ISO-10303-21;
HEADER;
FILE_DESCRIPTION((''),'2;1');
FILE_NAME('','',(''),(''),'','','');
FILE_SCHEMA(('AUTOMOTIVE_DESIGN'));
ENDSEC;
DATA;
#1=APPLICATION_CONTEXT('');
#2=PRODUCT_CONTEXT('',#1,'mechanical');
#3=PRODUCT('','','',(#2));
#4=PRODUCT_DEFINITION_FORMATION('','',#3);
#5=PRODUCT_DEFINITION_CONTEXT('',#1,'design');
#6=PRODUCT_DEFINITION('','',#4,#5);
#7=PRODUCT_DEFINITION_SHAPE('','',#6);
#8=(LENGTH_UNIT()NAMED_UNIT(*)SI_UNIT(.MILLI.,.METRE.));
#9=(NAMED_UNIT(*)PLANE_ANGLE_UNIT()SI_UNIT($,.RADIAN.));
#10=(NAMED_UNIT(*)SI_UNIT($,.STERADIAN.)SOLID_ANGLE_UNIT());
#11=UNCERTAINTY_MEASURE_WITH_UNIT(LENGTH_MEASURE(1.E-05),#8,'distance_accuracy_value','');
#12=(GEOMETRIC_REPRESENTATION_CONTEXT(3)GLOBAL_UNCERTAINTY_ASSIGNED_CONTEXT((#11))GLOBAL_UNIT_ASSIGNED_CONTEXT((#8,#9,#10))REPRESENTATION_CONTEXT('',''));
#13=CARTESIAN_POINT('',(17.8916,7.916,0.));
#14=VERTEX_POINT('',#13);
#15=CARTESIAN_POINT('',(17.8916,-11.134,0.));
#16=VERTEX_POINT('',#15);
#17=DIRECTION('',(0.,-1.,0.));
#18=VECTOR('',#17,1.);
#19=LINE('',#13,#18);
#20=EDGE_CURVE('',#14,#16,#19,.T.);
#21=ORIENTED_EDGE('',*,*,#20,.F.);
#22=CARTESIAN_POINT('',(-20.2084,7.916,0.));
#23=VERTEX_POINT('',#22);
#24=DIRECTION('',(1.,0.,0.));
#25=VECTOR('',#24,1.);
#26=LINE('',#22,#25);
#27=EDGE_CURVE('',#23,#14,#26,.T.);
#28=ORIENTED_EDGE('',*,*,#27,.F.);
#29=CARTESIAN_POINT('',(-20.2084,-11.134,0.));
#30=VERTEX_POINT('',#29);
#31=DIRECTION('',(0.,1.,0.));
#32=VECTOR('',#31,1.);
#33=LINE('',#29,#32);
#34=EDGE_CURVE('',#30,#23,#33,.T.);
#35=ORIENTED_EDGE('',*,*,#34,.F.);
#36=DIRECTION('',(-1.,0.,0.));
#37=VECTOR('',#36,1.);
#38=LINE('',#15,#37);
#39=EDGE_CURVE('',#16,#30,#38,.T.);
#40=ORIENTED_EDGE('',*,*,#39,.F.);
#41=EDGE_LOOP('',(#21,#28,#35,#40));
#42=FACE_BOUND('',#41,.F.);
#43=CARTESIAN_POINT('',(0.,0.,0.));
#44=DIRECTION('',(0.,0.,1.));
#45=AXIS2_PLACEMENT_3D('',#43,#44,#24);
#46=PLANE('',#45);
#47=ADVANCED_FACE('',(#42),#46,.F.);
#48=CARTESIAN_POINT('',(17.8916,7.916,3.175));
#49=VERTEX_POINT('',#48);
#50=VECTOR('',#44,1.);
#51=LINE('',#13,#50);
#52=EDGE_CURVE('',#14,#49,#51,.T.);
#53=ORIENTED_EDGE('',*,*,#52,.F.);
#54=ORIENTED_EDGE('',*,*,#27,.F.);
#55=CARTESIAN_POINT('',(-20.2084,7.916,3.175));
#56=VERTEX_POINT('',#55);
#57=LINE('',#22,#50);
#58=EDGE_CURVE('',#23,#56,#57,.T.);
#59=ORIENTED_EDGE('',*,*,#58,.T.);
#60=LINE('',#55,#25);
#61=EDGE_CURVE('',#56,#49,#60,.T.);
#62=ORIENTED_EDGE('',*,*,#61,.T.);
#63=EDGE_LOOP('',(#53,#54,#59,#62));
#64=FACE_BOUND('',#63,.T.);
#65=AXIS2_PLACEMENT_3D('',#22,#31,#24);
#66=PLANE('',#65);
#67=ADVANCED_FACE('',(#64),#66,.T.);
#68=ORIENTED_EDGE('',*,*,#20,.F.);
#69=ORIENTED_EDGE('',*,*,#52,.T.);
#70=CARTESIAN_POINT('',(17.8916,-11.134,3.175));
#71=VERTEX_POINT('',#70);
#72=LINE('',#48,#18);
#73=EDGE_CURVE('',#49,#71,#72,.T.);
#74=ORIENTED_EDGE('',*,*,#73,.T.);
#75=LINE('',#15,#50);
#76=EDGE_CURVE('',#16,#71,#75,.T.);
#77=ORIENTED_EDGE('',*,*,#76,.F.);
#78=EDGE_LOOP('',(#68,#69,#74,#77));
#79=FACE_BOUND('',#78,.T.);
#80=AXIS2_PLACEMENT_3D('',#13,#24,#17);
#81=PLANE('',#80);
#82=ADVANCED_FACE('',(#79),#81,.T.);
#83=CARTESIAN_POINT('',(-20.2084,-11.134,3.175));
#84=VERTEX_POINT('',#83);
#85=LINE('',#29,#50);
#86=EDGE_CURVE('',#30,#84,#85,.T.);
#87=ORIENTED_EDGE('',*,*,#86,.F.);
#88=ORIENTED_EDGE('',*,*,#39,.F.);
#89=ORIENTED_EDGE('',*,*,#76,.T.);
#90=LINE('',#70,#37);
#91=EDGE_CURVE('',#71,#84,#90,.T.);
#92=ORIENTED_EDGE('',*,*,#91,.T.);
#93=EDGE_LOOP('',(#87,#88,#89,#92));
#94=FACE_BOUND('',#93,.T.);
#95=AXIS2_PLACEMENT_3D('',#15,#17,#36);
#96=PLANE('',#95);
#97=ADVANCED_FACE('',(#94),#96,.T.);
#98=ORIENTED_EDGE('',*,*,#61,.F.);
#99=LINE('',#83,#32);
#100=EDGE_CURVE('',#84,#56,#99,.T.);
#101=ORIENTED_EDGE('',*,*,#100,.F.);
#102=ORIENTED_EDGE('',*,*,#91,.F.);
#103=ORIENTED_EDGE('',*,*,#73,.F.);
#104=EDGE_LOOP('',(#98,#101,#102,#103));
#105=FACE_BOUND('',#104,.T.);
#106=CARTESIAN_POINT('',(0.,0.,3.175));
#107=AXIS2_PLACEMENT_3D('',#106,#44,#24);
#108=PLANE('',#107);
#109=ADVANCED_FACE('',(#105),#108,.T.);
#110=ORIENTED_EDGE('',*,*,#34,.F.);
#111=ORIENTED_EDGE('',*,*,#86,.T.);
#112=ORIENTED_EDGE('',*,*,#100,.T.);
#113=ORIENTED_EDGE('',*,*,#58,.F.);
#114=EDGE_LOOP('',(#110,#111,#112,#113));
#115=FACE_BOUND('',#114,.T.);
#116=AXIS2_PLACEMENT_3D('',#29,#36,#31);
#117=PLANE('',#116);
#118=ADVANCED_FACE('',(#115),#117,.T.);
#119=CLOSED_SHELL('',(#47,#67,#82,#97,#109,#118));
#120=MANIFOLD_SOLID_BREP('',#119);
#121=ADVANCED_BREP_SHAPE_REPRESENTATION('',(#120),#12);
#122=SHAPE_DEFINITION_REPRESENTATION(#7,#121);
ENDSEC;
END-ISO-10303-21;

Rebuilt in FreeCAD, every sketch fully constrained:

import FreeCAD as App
import Part
import Sketcher
Q = App.Units.Quantity

doc = App.newDocument("Part")
body = doc.addObject("PartDesign::Body", "Body")

# Sketch on XY plane
sketch1 = body.newObject("Sketcher::SketchObject", "Sketch")
sketch1.AttachmentSupport = (doc.getObject("XY_Plane"), [""])
sketch1.MapMode = "FlatFace"
sketch1.addGeometry(Part.LineSegment(App.Vector(18, 8, 0), App.Vector(-20, 8, 0)), False)
sketch1.addGeometry(Part.LineSegment(App.Vector(-20, 8, 0), App.Vector(-20, -11, 0)), False)
sketch1.addGeometry(Part.LineSegment(App.Vector(-20, -11, 0), App.Vector(18, -11, 0)), False)
sketch1.addGeometry(Part.LineSegment(App.Vector(18, -11, 0), App.Vector(18, 8, 0)), False)
sketch1.addConstraint(Sketcher.Constraint("Coincident", 0, 2, 1, 1))
sketch1.addConstraint(Sketcher.Constraint("Coincident", 1, 2, 2, 1))
sketch1.addConstraint(Sketcher.Constraint("Coincident", 2, 2, 3, 1))
sketch1.addConstraint(Sketcher.Constraint("Coincident", 3, 2, 0, 1))
sketch1.addConstraint(Sketcher.Constraint("Horizontal", 0))
sketch1.addConstraint(Sketcher.Constraint("Vertical", 1))
sketch1.addConstraint(Sketcher.Constraint("Horizontal", 2))
sketch1.addConstraint(Sketcher.Constraint("Vertical", 3))
sketch1.addConstraint(Sketcher.Constraint("DistanceX", 0, 2, 0, 1, Q("1.5 in")))
sketch1.addConstraint(Sketcher.Constraint("DistanceY", 1, 2, 1, 1, Q("0.75 in")))
sketch1.addConstraint(Sketcher.Constraint("DistanceX", 0, 2, -1, 1, Q("0.7956 in")))
sketch1.addConstraint(Sketcher.Constraint("DistanceY", -1, 1, 0, 2, 7.916))
pad1 = body.newObject("PartDesign::Pad", "Pad")
pad1.Profile = sketch1
pad1.Length = Q("0.125 in")

doc.recompute()
